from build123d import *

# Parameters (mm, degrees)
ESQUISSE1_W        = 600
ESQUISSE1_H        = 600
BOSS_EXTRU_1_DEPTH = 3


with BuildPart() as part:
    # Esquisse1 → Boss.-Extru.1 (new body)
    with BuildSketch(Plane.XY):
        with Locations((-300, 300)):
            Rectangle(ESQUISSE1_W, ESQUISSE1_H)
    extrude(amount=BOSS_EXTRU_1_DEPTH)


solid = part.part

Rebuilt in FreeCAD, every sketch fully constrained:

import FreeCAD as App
import Part
import Sketcher
from FreeCAD import Vector
Q = App.Units.Quantity


def add_polygon(sketch, points):
    """Adds a closed chain of lines whose ends are joined by coincident constraints."""
    first, n = sketch.GeometryCount, len(points)
    for a, b in zip(points, points[1:] + points[:1]):
        sketch.addGeometry(Part.LineSegment(App.Vector(*a, 0), App.Vector(*b, 0)), False)
    for i in range(n):
        sketch.addConstraint(Sketcher.Constraint("Coincident", first + i, 2, first + (i + 1) % n, 1))

doc = App.newDocument("Part")
body = doc.addObject("PartDesign::Body", "Body")

sketch1 = body.newObject("Sketcher::SketchObject", "Sketch")
sketch1.AttachmentSupport = (doc.getObject("XY_Plane"), [""])
sketch1.MapMode = "FlatFace"
add_polygon(sketch1, [(-600, 600), (-600, 0), (0, 0), (0, 600)])
sketch1.addConstraint(Sketcher.Constraint("Vertical", 0))
sketch1.addConstraint(Sketcher.Constraint("Horizontal", 1))
sketch1.addConstraint(Sketcher.Constraint("Vertical", 2))
sketch1.addConstraint(Sketcher.Constraint("Horizontal", 3))
sketch1.addConstraint(Sketcher.Constraint("Coincident", 1, 2, -1, 1))
sketch1.addConstraint(Sketcher.Constraint("Equal", 3, 0))
sketch1.addConstraint(Sketcher.Constraint("DistanceX", 1, 1, 1, 2, Q("600 mm")))
pad1 = body.newObject("PartDesign::Pad", "Pad")
pad1.Profile = sketch1
pad1.Length = 3

doc.recompute()
